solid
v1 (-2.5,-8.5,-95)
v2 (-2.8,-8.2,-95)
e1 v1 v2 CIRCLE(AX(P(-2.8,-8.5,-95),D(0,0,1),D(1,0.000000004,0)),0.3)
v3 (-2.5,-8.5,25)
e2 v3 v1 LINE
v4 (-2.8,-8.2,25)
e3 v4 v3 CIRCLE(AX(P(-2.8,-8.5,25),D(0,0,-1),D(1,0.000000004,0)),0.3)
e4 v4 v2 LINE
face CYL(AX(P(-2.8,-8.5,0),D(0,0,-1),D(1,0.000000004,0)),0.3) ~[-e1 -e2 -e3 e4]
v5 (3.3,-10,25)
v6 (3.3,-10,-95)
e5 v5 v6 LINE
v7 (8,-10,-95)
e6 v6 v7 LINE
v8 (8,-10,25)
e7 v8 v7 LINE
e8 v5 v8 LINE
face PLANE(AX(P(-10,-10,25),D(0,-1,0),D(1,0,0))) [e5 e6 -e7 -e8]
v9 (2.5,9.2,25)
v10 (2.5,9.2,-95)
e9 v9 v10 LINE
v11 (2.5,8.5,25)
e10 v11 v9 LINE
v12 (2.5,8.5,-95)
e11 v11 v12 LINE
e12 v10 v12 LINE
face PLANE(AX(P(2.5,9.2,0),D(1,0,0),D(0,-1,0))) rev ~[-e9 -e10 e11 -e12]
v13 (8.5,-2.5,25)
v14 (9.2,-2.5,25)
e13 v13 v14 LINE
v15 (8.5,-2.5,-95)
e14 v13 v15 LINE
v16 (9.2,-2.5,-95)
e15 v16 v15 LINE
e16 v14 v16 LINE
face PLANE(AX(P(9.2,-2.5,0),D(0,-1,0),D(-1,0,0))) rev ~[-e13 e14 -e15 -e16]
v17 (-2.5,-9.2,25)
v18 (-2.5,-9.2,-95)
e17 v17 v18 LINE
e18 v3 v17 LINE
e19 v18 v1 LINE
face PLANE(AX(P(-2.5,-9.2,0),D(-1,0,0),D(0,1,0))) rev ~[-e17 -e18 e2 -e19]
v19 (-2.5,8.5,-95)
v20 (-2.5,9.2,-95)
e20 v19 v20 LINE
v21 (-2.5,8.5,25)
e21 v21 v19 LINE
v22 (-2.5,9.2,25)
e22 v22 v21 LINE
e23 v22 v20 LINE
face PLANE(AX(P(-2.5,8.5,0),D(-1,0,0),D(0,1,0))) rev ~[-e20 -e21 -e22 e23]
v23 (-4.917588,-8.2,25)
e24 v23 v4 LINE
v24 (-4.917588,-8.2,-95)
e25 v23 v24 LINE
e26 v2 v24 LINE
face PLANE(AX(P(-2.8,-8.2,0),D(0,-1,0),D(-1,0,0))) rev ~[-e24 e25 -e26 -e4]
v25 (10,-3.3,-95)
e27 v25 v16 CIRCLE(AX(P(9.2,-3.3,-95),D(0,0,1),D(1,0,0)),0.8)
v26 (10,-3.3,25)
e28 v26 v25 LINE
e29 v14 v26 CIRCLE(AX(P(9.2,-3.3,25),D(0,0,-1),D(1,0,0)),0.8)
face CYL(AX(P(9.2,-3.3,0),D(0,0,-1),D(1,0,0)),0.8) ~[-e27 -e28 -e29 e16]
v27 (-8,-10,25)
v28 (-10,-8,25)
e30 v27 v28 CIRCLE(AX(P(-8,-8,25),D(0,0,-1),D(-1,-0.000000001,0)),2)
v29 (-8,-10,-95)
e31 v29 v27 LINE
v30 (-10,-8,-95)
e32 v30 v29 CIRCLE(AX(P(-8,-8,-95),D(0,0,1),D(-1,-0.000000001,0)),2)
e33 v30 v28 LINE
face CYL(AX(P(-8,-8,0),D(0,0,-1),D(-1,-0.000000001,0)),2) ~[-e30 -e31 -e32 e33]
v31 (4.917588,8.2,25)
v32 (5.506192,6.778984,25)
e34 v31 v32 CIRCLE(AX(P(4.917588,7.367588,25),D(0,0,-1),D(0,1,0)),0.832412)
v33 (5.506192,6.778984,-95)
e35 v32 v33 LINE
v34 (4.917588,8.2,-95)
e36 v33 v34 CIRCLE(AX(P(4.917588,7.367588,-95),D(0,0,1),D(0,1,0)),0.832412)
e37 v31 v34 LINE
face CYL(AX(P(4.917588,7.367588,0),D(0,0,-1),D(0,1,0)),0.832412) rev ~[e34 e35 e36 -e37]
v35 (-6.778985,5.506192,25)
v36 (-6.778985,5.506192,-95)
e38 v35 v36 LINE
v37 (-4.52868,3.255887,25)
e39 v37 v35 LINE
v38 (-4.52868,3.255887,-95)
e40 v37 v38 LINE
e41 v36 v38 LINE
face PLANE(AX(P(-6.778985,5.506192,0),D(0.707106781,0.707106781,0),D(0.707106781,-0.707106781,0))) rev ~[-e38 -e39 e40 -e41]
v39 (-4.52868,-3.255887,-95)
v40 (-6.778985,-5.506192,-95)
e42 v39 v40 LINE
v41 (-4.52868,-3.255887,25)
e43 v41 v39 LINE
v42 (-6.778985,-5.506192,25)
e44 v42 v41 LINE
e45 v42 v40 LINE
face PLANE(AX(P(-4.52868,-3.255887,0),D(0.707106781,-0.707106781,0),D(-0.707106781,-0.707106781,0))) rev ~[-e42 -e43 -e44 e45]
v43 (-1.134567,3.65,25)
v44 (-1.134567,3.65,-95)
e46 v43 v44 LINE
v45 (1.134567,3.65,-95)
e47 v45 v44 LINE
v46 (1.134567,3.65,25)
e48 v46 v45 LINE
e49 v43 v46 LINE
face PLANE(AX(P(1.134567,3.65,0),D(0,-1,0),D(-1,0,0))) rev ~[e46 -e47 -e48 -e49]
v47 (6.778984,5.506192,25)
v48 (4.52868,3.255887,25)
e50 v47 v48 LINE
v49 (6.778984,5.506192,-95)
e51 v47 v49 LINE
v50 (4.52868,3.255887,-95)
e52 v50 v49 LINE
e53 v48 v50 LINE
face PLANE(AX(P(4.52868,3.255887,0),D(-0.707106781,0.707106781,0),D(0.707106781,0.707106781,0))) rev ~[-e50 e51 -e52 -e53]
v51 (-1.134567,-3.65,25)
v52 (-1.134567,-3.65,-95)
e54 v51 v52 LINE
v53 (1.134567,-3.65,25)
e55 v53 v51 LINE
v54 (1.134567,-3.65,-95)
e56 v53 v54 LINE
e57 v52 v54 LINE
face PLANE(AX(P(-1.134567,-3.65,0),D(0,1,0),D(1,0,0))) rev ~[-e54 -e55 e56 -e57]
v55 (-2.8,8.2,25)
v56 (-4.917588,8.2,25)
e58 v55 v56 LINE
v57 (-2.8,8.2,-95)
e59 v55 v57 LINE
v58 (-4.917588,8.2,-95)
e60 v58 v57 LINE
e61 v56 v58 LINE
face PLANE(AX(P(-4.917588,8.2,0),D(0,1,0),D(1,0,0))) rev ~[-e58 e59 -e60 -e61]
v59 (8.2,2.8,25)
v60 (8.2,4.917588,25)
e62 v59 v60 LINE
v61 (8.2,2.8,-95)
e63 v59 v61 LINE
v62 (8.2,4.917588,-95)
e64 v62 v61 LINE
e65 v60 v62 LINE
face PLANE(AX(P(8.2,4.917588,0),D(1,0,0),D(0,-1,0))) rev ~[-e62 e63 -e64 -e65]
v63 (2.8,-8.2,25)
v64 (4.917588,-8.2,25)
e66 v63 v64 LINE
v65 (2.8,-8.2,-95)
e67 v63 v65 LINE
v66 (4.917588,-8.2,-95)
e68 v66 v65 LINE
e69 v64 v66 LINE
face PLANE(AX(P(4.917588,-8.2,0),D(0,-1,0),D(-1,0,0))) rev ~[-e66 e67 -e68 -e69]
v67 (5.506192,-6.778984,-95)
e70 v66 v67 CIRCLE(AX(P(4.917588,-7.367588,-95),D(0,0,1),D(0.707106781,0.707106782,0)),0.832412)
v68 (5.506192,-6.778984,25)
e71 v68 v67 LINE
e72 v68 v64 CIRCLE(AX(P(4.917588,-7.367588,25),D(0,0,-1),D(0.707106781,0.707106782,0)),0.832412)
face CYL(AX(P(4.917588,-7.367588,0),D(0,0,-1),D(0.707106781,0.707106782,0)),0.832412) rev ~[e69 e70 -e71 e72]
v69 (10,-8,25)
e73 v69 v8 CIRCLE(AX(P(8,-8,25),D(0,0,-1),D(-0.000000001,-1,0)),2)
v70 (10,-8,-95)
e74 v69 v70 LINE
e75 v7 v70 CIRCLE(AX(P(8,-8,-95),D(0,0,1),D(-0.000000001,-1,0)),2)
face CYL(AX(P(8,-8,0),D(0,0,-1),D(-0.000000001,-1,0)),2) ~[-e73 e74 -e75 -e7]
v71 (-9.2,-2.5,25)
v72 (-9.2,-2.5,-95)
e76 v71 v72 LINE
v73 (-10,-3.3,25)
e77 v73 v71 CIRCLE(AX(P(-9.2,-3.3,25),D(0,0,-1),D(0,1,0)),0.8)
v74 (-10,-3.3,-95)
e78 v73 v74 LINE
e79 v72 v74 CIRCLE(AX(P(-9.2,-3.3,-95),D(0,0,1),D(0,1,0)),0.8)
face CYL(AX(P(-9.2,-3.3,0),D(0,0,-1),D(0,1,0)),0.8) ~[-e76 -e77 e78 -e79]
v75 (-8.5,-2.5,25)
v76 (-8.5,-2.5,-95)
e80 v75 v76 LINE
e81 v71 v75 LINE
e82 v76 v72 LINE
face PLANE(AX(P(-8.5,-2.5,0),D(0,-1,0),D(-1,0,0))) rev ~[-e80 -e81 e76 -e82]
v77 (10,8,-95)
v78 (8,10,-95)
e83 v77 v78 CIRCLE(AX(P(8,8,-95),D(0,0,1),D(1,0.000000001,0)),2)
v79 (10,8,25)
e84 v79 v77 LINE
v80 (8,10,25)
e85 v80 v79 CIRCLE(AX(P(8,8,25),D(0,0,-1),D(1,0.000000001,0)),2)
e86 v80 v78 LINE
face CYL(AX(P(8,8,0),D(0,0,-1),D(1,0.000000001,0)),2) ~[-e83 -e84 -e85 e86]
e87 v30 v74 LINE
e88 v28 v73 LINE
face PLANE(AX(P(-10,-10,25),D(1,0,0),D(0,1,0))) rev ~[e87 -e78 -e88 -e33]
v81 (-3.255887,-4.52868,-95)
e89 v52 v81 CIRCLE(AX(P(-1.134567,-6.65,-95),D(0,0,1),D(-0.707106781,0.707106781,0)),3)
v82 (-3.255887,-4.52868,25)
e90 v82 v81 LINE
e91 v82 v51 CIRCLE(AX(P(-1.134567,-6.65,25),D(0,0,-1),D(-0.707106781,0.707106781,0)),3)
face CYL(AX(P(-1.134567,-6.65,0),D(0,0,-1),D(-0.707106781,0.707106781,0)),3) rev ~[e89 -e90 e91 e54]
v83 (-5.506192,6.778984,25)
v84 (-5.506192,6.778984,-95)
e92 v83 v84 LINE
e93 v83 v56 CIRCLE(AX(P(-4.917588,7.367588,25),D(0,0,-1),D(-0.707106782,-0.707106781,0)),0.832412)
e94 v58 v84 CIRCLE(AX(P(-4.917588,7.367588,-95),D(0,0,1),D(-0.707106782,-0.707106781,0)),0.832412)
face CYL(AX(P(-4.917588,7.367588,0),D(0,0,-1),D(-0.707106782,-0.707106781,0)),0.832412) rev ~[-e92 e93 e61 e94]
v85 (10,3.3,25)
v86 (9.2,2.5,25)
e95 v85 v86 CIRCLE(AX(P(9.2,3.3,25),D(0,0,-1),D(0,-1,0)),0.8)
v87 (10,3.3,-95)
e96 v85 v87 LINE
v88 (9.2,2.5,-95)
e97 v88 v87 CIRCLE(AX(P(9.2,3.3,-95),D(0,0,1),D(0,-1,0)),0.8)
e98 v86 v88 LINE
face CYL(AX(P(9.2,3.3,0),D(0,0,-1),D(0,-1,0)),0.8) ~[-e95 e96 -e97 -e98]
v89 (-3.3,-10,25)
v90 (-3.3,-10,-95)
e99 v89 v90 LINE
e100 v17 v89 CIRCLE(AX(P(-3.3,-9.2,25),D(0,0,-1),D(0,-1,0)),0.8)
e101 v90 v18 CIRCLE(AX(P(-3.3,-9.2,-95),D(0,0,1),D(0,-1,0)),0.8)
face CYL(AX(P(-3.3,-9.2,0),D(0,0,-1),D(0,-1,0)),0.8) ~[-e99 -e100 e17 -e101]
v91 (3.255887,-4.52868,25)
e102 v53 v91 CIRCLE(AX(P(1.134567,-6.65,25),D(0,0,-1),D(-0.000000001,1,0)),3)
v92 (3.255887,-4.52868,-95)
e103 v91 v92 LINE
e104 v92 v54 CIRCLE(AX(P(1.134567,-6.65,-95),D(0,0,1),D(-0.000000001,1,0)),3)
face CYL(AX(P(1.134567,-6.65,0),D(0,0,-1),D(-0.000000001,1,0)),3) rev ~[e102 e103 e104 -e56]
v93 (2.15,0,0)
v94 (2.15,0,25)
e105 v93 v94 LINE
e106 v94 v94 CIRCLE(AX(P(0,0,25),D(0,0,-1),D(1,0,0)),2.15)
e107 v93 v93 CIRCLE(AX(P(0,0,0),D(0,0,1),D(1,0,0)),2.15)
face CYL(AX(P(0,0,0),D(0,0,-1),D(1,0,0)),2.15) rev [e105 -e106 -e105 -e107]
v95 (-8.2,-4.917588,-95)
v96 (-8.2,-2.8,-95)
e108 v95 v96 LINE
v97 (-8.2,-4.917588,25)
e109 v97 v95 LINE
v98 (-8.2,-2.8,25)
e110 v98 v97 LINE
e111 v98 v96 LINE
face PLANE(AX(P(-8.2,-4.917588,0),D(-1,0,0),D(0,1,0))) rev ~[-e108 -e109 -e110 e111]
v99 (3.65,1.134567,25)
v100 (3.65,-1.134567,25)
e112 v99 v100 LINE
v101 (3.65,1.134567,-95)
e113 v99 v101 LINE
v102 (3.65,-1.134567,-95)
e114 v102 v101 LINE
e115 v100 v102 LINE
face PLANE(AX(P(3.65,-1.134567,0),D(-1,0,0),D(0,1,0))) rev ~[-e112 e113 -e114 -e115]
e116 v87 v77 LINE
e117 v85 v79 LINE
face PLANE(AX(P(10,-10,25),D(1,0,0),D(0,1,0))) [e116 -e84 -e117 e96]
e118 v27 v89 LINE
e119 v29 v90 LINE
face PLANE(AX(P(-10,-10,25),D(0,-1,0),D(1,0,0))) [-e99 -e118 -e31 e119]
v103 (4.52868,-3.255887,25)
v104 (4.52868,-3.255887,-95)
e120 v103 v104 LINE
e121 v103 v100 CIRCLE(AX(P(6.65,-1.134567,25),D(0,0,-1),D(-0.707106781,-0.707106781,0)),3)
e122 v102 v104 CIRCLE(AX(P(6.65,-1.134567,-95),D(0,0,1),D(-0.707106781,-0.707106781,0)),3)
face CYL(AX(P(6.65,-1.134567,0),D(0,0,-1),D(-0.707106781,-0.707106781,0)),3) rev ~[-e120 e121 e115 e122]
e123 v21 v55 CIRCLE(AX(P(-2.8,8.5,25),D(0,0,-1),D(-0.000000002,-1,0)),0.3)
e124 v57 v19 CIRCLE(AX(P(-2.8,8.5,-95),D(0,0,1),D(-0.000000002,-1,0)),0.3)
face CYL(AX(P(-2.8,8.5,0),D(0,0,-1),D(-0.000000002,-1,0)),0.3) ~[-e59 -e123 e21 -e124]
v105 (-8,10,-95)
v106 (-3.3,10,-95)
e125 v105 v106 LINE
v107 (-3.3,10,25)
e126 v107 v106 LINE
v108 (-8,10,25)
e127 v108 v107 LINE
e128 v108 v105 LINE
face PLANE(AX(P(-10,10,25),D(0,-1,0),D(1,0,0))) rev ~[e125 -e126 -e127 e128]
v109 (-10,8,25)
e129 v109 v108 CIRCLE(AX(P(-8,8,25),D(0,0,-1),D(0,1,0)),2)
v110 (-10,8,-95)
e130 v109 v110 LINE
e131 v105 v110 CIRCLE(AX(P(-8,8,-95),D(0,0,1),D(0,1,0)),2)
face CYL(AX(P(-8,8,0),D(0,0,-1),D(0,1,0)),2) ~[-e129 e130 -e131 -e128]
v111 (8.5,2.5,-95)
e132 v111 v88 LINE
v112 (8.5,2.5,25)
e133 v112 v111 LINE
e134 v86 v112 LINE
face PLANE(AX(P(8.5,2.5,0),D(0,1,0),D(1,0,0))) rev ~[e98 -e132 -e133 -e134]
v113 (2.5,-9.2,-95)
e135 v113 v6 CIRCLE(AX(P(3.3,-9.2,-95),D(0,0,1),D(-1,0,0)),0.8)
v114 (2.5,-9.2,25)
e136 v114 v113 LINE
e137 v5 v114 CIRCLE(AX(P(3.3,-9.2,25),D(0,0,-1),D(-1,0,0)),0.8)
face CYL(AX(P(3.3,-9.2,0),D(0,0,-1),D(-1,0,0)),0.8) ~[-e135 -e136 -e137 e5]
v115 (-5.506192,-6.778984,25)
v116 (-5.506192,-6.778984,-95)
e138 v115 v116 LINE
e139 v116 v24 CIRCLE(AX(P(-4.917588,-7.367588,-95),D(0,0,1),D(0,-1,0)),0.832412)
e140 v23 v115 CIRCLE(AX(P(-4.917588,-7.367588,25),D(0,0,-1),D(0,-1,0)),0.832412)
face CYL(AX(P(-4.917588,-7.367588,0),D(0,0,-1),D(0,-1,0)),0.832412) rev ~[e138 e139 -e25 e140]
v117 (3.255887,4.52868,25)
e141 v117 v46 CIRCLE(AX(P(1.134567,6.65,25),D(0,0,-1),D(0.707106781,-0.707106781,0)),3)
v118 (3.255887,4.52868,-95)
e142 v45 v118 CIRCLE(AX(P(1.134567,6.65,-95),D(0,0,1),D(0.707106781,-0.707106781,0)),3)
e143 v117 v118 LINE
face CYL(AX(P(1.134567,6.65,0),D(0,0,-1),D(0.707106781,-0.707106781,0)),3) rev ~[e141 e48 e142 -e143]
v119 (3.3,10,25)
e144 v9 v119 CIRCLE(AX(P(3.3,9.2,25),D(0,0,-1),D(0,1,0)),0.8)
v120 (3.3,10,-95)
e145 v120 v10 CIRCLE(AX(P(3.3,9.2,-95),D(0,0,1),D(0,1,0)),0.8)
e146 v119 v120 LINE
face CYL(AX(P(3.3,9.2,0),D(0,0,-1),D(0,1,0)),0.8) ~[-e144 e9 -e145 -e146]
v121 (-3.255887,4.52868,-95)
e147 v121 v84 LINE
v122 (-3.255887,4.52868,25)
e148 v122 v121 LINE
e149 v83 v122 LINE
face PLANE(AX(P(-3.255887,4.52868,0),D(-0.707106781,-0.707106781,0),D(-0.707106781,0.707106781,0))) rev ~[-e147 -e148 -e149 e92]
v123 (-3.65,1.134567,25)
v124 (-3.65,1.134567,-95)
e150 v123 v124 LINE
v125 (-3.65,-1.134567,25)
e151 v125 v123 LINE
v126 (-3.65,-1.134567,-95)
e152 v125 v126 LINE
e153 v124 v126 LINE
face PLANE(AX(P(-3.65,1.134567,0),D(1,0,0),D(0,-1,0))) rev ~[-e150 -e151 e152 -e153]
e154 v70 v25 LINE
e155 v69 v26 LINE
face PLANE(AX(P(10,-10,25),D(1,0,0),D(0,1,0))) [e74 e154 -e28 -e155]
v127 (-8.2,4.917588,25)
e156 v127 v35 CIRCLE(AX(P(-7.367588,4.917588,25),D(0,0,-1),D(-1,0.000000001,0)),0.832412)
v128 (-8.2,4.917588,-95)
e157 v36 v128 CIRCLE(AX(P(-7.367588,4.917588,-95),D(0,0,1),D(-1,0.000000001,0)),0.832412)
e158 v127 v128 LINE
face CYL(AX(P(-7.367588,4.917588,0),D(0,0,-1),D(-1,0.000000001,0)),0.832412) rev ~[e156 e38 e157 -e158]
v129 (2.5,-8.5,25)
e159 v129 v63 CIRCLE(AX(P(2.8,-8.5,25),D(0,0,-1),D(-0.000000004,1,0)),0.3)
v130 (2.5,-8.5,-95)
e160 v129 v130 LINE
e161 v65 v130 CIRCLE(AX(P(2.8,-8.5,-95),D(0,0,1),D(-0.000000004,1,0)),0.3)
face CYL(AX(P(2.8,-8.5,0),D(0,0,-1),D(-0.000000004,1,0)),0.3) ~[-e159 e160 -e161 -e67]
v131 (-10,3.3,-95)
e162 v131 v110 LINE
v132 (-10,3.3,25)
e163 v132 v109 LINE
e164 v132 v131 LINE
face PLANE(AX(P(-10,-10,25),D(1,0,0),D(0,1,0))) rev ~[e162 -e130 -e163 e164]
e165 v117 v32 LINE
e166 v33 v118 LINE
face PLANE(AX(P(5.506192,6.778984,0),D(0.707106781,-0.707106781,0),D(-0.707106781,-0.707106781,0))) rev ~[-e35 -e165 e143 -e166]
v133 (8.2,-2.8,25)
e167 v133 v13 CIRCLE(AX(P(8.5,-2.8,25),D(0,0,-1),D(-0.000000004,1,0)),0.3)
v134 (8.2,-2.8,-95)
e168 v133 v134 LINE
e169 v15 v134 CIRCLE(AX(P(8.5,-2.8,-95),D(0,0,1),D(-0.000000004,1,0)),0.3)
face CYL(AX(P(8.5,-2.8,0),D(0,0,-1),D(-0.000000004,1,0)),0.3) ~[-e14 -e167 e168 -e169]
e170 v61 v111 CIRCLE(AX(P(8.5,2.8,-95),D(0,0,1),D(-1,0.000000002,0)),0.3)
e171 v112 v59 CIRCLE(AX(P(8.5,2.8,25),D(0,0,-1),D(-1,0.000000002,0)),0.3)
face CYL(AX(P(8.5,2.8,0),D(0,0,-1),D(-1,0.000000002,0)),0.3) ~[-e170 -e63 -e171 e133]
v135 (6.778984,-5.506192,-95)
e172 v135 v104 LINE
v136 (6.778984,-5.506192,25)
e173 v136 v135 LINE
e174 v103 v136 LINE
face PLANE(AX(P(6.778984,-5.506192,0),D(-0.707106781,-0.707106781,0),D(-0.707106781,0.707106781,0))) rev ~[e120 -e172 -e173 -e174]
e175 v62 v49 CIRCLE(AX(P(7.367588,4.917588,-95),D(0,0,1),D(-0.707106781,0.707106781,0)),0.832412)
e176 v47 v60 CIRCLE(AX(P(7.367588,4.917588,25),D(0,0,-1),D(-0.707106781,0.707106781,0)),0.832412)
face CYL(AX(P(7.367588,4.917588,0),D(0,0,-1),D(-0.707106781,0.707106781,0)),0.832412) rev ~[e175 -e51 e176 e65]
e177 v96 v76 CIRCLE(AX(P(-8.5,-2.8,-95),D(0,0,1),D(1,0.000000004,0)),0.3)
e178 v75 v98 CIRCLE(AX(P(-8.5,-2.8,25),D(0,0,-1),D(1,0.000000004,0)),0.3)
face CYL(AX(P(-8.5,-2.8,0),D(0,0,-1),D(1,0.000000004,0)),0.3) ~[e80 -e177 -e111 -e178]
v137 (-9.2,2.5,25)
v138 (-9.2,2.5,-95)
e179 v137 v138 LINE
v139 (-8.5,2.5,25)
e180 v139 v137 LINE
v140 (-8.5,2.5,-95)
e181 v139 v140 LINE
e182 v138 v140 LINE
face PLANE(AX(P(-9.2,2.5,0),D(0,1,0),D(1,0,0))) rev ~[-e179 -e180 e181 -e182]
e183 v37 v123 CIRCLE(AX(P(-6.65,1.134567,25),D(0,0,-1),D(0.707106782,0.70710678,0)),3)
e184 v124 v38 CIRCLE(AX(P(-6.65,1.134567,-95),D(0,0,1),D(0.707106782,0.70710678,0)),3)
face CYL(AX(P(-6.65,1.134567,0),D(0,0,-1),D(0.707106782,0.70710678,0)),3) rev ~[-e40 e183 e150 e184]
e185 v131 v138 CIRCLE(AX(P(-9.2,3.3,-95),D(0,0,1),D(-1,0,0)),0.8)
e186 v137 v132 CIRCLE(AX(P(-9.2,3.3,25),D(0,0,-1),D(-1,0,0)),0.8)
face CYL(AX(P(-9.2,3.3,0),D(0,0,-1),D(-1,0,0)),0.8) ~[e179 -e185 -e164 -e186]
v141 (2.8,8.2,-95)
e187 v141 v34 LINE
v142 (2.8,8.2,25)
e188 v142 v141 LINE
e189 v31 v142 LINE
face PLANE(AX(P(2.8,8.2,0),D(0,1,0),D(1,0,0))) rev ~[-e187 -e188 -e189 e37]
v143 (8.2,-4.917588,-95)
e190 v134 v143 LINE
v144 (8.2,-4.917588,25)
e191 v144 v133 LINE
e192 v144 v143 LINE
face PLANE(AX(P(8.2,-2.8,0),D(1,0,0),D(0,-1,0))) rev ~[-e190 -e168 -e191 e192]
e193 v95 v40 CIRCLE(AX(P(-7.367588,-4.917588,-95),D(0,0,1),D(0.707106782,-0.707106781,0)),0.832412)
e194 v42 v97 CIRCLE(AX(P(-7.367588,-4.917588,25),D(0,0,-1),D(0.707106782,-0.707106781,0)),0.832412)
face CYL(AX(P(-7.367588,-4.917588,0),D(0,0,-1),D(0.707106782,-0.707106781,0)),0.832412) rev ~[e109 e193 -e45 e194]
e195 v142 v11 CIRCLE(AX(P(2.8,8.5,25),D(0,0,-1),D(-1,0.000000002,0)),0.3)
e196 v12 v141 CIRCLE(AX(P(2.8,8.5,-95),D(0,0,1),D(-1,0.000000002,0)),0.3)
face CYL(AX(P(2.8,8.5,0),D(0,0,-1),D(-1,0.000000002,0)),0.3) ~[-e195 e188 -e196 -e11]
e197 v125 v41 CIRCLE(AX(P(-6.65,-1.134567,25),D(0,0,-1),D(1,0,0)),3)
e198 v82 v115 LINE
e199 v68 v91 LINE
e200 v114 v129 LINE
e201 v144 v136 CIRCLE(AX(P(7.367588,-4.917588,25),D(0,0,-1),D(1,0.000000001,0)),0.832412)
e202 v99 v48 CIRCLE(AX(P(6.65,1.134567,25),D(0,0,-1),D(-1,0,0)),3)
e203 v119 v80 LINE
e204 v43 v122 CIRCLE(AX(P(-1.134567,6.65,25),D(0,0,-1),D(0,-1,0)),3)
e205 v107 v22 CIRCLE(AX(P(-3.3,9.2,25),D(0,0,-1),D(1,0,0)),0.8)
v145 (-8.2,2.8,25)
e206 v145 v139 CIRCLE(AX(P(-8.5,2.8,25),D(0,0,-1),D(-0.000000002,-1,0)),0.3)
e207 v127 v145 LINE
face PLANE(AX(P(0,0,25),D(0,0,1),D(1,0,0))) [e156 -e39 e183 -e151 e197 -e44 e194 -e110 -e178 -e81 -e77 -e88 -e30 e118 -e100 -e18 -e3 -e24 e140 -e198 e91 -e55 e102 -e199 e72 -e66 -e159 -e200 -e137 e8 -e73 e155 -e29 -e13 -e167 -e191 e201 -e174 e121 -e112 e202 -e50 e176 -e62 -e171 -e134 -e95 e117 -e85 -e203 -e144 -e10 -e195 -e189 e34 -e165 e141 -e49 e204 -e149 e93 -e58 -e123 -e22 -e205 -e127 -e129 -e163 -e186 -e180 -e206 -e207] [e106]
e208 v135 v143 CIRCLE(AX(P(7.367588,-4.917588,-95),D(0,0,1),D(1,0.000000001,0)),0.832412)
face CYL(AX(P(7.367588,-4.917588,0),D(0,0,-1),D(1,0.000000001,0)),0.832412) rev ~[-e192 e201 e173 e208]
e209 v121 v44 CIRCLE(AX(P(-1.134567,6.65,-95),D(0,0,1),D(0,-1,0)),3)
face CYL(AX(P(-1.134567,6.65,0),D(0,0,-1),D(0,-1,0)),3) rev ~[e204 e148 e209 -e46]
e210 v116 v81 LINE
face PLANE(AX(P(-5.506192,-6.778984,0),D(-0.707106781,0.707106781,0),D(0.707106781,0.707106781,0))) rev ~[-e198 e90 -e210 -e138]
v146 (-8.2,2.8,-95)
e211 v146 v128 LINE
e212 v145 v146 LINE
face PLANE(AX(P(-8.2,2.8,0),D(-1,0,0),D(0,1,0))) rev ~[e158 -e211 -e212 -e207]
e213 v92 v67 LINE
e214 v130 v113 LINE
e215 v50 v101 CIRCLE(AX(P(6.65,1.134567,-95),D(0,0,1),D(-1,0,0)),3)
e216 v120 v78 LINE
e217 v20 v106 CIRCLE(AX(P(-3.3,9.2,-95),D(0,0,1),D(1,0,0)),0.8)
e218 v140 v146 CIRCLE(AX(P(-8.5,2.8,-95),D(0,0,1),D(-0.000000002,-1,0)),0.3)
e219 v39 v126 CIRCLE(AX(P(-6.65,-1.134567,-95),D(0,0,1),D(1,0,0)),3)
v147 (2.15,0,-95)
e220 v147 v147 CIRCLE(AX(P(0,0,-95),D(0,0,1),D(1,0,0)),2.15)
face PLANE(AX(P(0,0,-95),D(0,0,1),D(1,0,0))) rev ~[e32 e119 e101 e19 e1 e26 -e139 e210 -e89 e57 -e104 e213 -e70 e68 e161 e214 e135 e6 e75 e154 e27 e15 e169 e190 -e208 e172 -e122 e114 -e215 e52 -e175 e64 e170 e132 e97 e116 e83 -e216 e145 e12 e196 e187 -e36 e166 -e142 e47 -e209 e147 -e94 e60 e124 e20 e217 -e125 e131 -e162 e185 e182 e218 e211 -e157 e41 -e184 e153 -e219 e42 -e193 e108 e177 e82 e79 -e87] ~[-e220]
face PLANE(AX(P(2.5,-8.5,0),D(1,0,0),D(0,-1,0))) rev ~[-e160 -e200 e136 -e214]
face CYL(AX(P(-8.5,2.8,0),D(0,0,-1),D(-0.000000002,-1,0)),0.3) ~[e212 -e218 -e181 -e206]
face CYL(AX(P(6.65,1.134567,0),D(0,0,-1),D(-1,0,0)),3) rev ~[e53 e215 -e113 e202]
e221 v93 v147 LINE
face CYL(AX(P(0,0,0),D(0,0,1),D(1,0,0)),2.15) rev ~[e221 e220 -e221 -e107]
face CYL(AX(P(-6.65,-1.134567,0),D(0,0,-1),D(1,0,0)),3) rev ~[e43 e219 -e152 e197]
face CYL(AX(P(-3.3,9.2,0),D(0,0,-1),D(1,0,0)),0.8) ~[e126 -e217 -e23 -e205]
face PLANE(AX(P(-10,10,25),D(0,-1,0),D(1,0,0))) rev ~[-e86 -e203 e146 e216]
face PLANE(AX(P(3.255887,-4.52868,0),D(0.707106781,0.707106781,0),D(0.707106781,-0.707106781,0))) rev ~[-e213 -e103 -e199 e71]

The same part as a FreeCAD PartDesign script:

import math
import FreeCAD as App
import Part
import Sketcher
from FreeCAD import Vector

doc = App.newDocument("Part")
body = doc.addObject("PartDesign::Body", "Body")

sketch1 = body.newObject("Sketcher::SketchObject", "Sketch")
sketch1.AttachmentSupport = (doc.getObject("XY_Plane"), [""])
sketch1.MapMode = "FlatFace"
sketch1.AttachmentOffset = App.Placement(Vector(0, 0, 25), App.Rotation())
sketch1.addGeometry(Part.LineSegment(Vector(-10, 10, 0), Vector(-10, -10, 0)), False)
sketch1.addGeometry(Part.LineSegment(Vector(-10, -10, 0), Vector(10, -10, 0)), False)
sketch1.addGeometry(Part.LineSegment(Vector(10, -10, 0), Vector(10, 10, 0)), False)
sketch1.addGeometry(Part.LineSegment(Vector(10, 10, 0), Vector(-10, 10, 0)), False)
sketch1.addConstraint(Sketcher.Constraint("Coincident", 0, 2, 1, 1))
sketch1.addConstraint(Sketcher.Constraint("Coincident", 1, 2, 2, 1))
sketch1.addConstraint(Sketcher.Constraint("Coincident", 2, 2, 3, 1))
sketch1.addConstraint(Sketcher.Constraint("Coincident", 3, 2, 0, 1))
sketch1.addConstraint(Sketcher.Constraint("Vertical", 0))
sketch1.addConstraint(Sketcher.Constraint("Horizontal", 1))
sketch1.addConstraint(Sketcher.Constraint("Vertical", 2))
sketch1.addConstraint(Sketcher.Constraint("Horizontal", 3))
sketch1.addConstraint(Sketcher.Constraint("Symmetric", 0, 2, 2, 2, -1, 1))
sketch1.addConstraint(Sketcher.Constraint("Equal", 3, 0))
sketch1.addConstraint(Sketcher.Constraint("DistanceX", 1, 1, 1, 2, 20.0))
pad1 = body.newObject("PartDesign::Pad", "Pad")
pad1.Profile = sketch1
pad1.Length = 120
pad1.Reversed = True

sketch2 = body.newObject("Sketcher::SketchObject", "Sketch001")
sketch2.AttachmentSupport = (doc.getObject("XY_Plane"), [""])
sketch2.MapMode = "FlatFace"
sketch2.addGeometry(Part.LineSegment(Vector(-23.33, 23.33, 0), Vector(-23.33, -23.33, 0)), False)
sketch2.addGeometry(Part.LineSegment(Vector(-23.33, -23.33, 0), Vector(23.33, -23.33, 0)), False)
sketch2.addGeometry(Part.LineSegment(Vector(23.33, -23.33, 0), Vector(23.33, 23.33, 0)), False)
sketch2.addGeometry(Part.LineSegment(Vector(23.33, 23.33, 0), Vector(-23.33, 23.33, 0)), False)
sketch2.addGeometry(Part.LineSegment(Vector(2.8, -8.2, 0), Vector(4.92, -8.2, 0)), False)
sketch2.addGeometry(Part.ArcOfCircle(Part.Circle(Vector(4.92, -7.37, 0), Vector(0, 0, 1), 0.83), math.radians(-90), math.radians(45)), False)
sketch2.addGeometry(Part.LineSegment(Vector(5.51, -6.78, 0), Vector(3.26, -4.53, 0)), False)
sketch2.addGeometry(Part.ArcOfCircle(Part.Circle(Vector(1.13, -6.65, 0), Vector(0, 0, 1), 3), math.radians(45), math.radians(90)), False)
sketch2.addGeometry(Part.LineSegment(Vector(1.13, -3.65, 0), Vector(-1.13, -3.65, 0)), False)
sketch2.addGeometry(Part.ArcOfCircle(Part.Circle(Vector(-1.13, -6.65, 0), Vector(0, 0, 1), 3), math.radians(90), math.radians(135)), False)
sketch2.addGeometry(Part.LineSegment(Vector(-3.26, -4.53, 0), Vector(-5.51, -6.78, 0)), False)
sketch2.addGeometry(Part.ArcOfCircle(Part.Circle(Vector(-4.92, -7.37, 0), Vector(0, 0, 1), 0.83), math.radians(135), math.radians(270)), False)
sketch2.addGeometry(Part.LineSegment(Vector(-4.92, -8.2, 0), Vector(-2.8, -8.2, 0)), False)
sketch2.addGeometry(Part.ArcOfCircle(Part.Circle(Vector(-2.8, -8.5, 0), Vector(0, 0, 1), 0.3), math.radians(0), math.radians(90)), False)
sketch2.addGeometry(Part.LineSegment(Vector(-2.5, -8.5, 0), Vector(-2.5, -9.2, 0)), False)
sketch2.addGeometry(Part.ArcOfCircle(Part.Circle(Vector(-3.3, -9.2, 0), Vector(0, 0, 1), 0.8), math.radians(-90), math.radians(0)), False)
sketch2.addGeometry(Part.LineSegment(Vector(-3.3, -10, 0), Vector(-8, -10, 0)), False)
sketch2.addGeometry(Part.ArcOfCircle(Part.Circle(Vector(-8, -8, 0), Vector(0, 0, 1), 2), math.radians(-180), math.radians(-90)), False)
sketch2.addGeometry(Part.LineSegment(Vector(-10, -8, 0), Vector(-10, -3.3, 0)), False)
sketch2.addGeometry(Part.ArcOfCircle(Part.Circle(Vector(-9.2, -3.3, 0), Vector(0, 0, 1), 0.8), math.radians(90), math.radians(180)), False)
sketch2.addGeometry(Part.LineSegment(Vector(-9.2, -2.5, 0), Vector(-8.5, -2.5, 0)), False)
sketch2.addGeometry(Part.ArcOfCircle(Part.Circle(Vector(-8.5, -2.8, 0), Vector(0, 0, 1), 0.3), math.radians(0), math.radians(90)), False)
sketch2.addGeometry(Part.LineSegment(Vector(-8.2, -2.8, 0), Vector(-8.2, -4.92, 0)), False)
sketch2.addGeometry(Part.ArcOfCircle(Part.Circle(Vector(-7.37, -4.92, 0), Vector(0, 0, 1), 0.83), math.radians(180), math.radians(315)), False)
sketch2.addGeometry(Part.LineSegment(Vector(-6.78, -5.51, 0), Vector(-4.53, -3.26, 0)), False)
sketch2.addGeometry(Part.ArcOfCircle(Part.Circle(Vector(-6.65, -1.13, 0), Vector(0, 0, 1), 3), math.radians(-45), math.radians(0)), False)
sketch2.addGeometry(Part.LineSegment(Vector(-3.65, -1.13, 0), Vector(-3.65, 1.13, 0)), False)
sketch2.addGeometry(Part.ArcOfCircle(Part.Circle(Vector(-6.65, 1.13, 0), Vector(0, 0, 1), 3), math.radians(0), math.radians(45)), False)
sketch2.addGeometry(Part.LineSegment(Vector(-4.53, 3.26, 0), Vector(-6.78, 5.51, 0)), False)
sketch2.addGeometry(Part.ArcOfCircle(Part.Circle(Vector(-7.37, 4.92, 0), Vector(0, 0, 1), 0.83), math.radians(45), math.radians(180)), False)
sketch2.addGeometry(Part.LineSegment(Vector(-8.2, 4.92, 0), Vector(-8.2, 2.8, 0)), False)
sketch2.addGeometry(Part.ArcOfCircle(Part.Circle(Vector(-8.5, 2.8, 0), Vector(0, 0, 1), 0.3), math.radians(-90), math.radians(0)), False)
sketch2.addGeometry(Part.LineSegment(Vector(-8.5, 2.5, 0), Vector(-9.2, 2.5, 0)), False)
sketch2.addGeometry(Part.ArcOfCircle(Part.Circle(Vector(-9.2, 3.3, 0), Vector(0, 0, 1), 0.8), math.radians(180), math.radians(270)), False)
sketch2.addGeometry(Part.LineSegment(Vector(-10, 3.3, 0), Vector(-10, 8, 0)), False)
sketch2.addGeometry(Part.ArcOfCircle(Part.Circle(Vector(-8, 8, 0), Vector(0, 0, 1), 2), math.radians(90), math.radians(180)), False)
sketch2.addGeometry(Part.LineSegment(Vector(-8, 10, 0), Vector(-3.3, 10, 0)), False)
sketch2.addGeometry(Part.ArcOfCircle(Part.Circle(Vector(-3.3, 9.2, 0), Vector(0, 0, 1), 0.8), math.radians(0), math.radians(90)), False)
sketch2.addGeometry(Part.LineSegment(Vector(-2.5, 9.2, 0), Vector(-2.5, 8.5, 0)), False)
sketch2.addGeometry(Part.ArcOfCircle(Part.Circle(Vector(-2.8, 8.5, 0), Vector(0, 0, 1), 0.3), math.radians(-90), math.radians(0)), False)
sketch2.addGeometry(Part.LineSegment(Vector(-2.8, 8.2, 0), Vector(-4.92, 8.2, 0)), False)
sketch2.addGeometry(Part.ArcOfCircle(Part.Circle(Vector(-4.92, 7.37, 0), Vector(0, 0, 1), 0.83), math.radians(90), math.radians(225)), False)
sketch2.addGeometry(Part.LineSegment(Vector(-5.51, 6.78, 0), Vector(-3.26, 4.53, 0)), False)
sketch2.addGeometry(Part.ArcOfCircle(Part.Circle(Vector(-1.13, 6.65, 0), Vector(0, 0, 1), 3), math.radians(-135), math.radians(-90)), False)
sketch2.addGeometry(Part.LineSegment(Vector(-1.13, 3.65, 0), Vector(1.13, 3.65, 0)), False)
sketch2.addGeometry(Part.ArcOfCircle(Part.Circle(Vector(1.13, 6.65, 0), Vector(0, 0, 1), 3), math.radians(-90), math.radians(-45)), False)
sketch2.addGeometry(Part.LineSegment(Vector(3.26, 4.53, 0), Vector(5.51, 6.78, 0)), False)
sketch2.addGeometry(Part.ArcOfCircle(Part.Circle(Vector(4.92, 7.37, 0), Vector(0, 0, 1), 0.83), math.radians(-45), math.radians(90)), False)
sketch2.addGeometry(Part.LineSegment(Vector(4.92, 8.2, 0), Vector(2.8, 8.2, 0)), False)
sketch2.addGeometry(Part.ArcOfCircle(Part.Circle(Vector(2.8, 8.5, 0), Vector(0, 0, 1), 0.3), math.radians(180), math.radians(270)), False)
sketch2.addGeometry(Part.LineSegment(Vector(2.5, 8.5, 0), Vector(2.5, 9.2, 0)), False)
sketch2.addGeometry(Part.ArcOfCircle(Part.Circle(Vector(3.3, 9.2, 0), Vector(0, 0, 1), 0.8), math.radians(90), math.radians(180)), False)
sketch2.addGeometry(Part.LineSegment(Vector(3.3, 10, 0), Vector(8, 10, 0)), False)
sketch2.addGeometry(Part.ArcOfCircle(Part.Circle(Vector(8, 8, 0), Vector(0, 0, 1), 2), math.radians(0), math.radians(90)), False)
sketch2.addGeometry(Part.LineSegment(Vector(10, 8, 0), Vector(10, 3.3, 0)), False)
sketch2.addGeometry(Part.ArcOfCircle(Part.Circle(Vector(9.2, 3.3, 0), Vector(0, 0, 1), 0.8), math.radians(-90), math.radians(0)), False)
sketch2.addGeometry(Part.LineSegment(Vector(9.2, 2.5, 0), Vector(8.5, 2.5, 0)), False)
sketch2.addGeometry(Part.ArcOfCircle(Part.Circle(Vector(8.5, 2.8, 0), Vector(0, 0, 1), 0.3), math.radians(180), math.radians(270)), False)
sketch2.addGeometry(Part.LineSegment(Vector(8.2, 2.8, 0), Vector(8.2, 4.92, 0)), False)
sketch2.addGeometry(Part.ArcOfCircle(Part.Circle(Vector(7.37, 4.92, 0), Vector(0, 0, 1), 0.83), math.radians(0), math.radians(135)), False)
sketch2.addGeometry(Part.LineSegment(Vector(6.78, 5.51, 0), Vector(4.53, 3.26, 0)), False)
sketch2.addGeometry(Part.ArcOfCircle(Part.Circle(Vector(6.65, 1.13, 0), Vector(0, 0, 1), 3), math.radians(135), math.radians(180)), False)
sketch2.addGeometry(Part.LineSegment(Vector(3.65, 1.13, 0), Vector(3.65, -1.13, 0)), False)
sketch2.addGeometry(Part.ArcOfCircle(Part.Circle(Vector(6.65, -1.13, 0), Vector(0, 0, 1), 3), math.radians(180), math.radians(225)), False)
sketch2.addGeometry(Part.LineSegment(Vector(4.53, -3.26, 0), Vector(6.78, -5.51, 0)), False)
sketch2.addGeometry(Part.ArcOfCircle(Part.Circle(Vector(7.37, -4.92, 0), Vector(0, 0, 1), 0.83), math.radians(-135), math.radians(0)), False)
sketch2.addGeometry(Part.LineSegment(Vector(8.2, -4.92, 0), Vector(8.2, -2.8, 0)), False)
sketch2.addGeometry(Part.ArcOfCircle(Part.Circle(Vector(8.5, -2.8, 0), Vector(0, 0, 1), 0.3), math.radians(90), math.radians(180)), False)
sketch2.addGeometry(Part.LineSegment(Vector(8.5, -2.5, 0), Vector(9.2, -2.5, 0)), False)
sketch2.addGeometry(Part.ArcOfCircle(Part.Circle(Vector(9.2, -3.3, 0), Vector(0, 0, 1), 0.8), math.radians(0), math.radians(90)), False)
sketch2.addGeometry(Part.LineSegment(Vector(10, -3.3, 0), Vector(10, -8, 0)), False)
sketch2.addGeometry(Part.ArcOfCircle(Part.Circle(Vector(8, -8, 0), Vector(0, 0, 1), 2), math.radians(-90), math.radians(0)), False)
sketch2.addGeometry(Part.LineSegment(Vector(8, -10, 0), Vector(3.3, -10, 0)), False)
sketch2.addGeometry(Part.ArcOfCircle(Part.Circle(Vector(3.3, -9.2, 0), Vector(0, 0, 1), 0.8), math.radians(180), math.radians(270)), False)
sketch2.addGeometry(Part.LineSegment(Vector(2.5, -9.2, 0), Vector(2.5, -8.5, 0)), False)
sketch2.addGeometry(Part.ArcOfCircle(Part.Circle(Vector(2.8, -8.5, 0), Vector(0, 0, 1), 0.3), math.radians(90), math.radians(180)), False)
sketch2.addGeometry(Part.Circle(Vector(0, 0, 0), Vector(0, 0, 1), 2.15), False)
sketch2.addConstraint(Sketcher.Constraint("Coincident", 0, 2, 1, 1))
sketch2.addConstraint(Sketcher.Constraint("Coincident", 1, 2, 2, 1))
sketch2.addConstraint(Sketcher.Constraint("Coincident", 2, 2, 3, 1))
sketch2.addConstraint(Sketcher.Constraint("Coincident", 3, 2, 0, 1))
sketch2.addConstraint(Sketcher.Constraint("Tangent", 4, 2, 5, 1))
sketch2.addConstraint(Sketcher.Constraint("Tangent", 5, 2, 6, 1))
sketch2.addConstraint(Sketcher.Constraint("Tangent", 6, 2, 7, 1))
sketch2.addConstraint(Sketcher.Constraint("Tangent", 7, 2, 8, 1))
sketch2.addConstraint(Sketcher.Constraint("Tangent", 8, 2, 9, 1))
sketch2.addConstraint(Sketcher.Constraint("Tangent", 9, 2, 10, 1))
sketch2.addConstraint(Sketcher.Constraint("Tangent", 10, 2, 11, 1))
sketch2.addConstraint(Sketcher.Constraint("Tangent", 11, 2, 12, 1))
sketch2.addConstraint(Sketcher.Constraint("Tangent", 12, 2, 13, 2))
sketch2.addConstraint(Sketcher.Constraint("Tangent", 13, 1, 14, 1))
sketch2.addConstraint(Sketcher.Constraint("Tangent", 14, 2, 15, 2))
sketch2.addConstraint(Sketcher.Constraint("Tangent", 15, 1, 16, 1))
sketch2.addConstraint(Sketcher.Constraint("Tangent", 16, 2, 17, 2))
sketch2.addConstraint(Sketcher.Constraint("Tangent", 17, 1, 18, 1))
sketch2.addConstraint(Sketcher.Constraint("Tangent", 18, 2, 19, 2))
sketch2.addConstraint(Sketcher.Constraint("Tangent", 19, 1, 20, 1))
sketch2.addConstraint(Sketcher.Constraint("Tangent", 20, 2, 21, 2))
sketch2.addConstraint(Sketcher.Constraint("Tangent", 21, 1, 22, 1))
sketch2.addConstraint(Sketcher.Constraint("Tangent", 22, 2, 23, 1))
sketch2.addConstraint(Sketcher.Constraint("Tangent", 23, 2, 24, 1))
sketch2.addConstraint(Sketcher.Constraint("Tangent", 24, 2, 25, 1))
sketch2.addConstraint(Sketcher.Constraint("Tangent", 25, 2, 26, 1))
sketch2.addConstraint(Sketcher.Constraint("Tangent", 26, 2, 27, 1))
sketch2.addConstraint(Sketcher.Constraint("Tangent", 27, 2, 28, 1))
sketch2.addConstraint(Sketcher.Constraint("Tangent", 28, 2, 29, 1))
sketch2.addConstraint(Sketcher.Constraint("Tangent", 29, 2, 30, 1))
sketch2.addConstraint(Sketcher.Constraint("Tangent", 30, 2, 31, 2))
sketch2.addConstraint(Sketcher.Constraint("Tangent", 31, 1, 32, 1))
sketch2.addConstraint(Sketcher.Constraint("Tangent", 32, 2, 33, 2))
sketch2.addConstraint(Sketcher.Constraint("Tangent", 33, 1, 34, 1))
sketch2.addConstraint(Sketcher.Constraint("Tangent", 34, 2, 35, 2))
sketch2.addConstraint(Sketcher.Constraint("Tangent", 35, 1, 36, 1))
sketch2.addConstraint(Sketcher.Constraint("Tangent", 36, 2, 37, 2))
sketch2.addConstraint(Sketcher.Constraint("Tangent", 37, 1, 38, 1))
sketch2.addConstraint(Sketcher.Constraint("Tangent", 38, 2, 39, 2))
sketch2.addConstraint(Sketcher.Constraint("Tangent", 39, 1, 40, 1))
sketch2.addConstraint(Sketcher.Constraint("Tangent", 40, 2, 41, 1))
sketch2.addConstraint(Sketcher.Constraint("Tangent", 41, 2, 42, 1))
sketch2.addConstraint(Sketcher.Constraint("Tangent", 42, 2, 43, 1))
sketch2.addConstraint(Sketcher.Constraint("Tangent", 43, 2, 44, 1))
sketch2.addConstraint(Sketcher.Constraint("Tangent", 44, 2, 45, 1))
sketch2.addConstraint(Sketcher.Constraint("Tangent", 45, 2, 46, 1))
sketch2.addConstraint(Sketcher.Constraint("Tangent", 46, 2, 47, 1))
sketch2.addConstraint(Sketcher.Constraint("Tangent", 47, 2, 48, 1))
sketch2.addConstraint(Sketcher.Constraint("Tangent", 48, 2, 49, 2))
sketch2.addConstraint(Sketcher.Constraint("Tangent", 49, 1, 50, 1))
sketch2.addConstraint(Sketcher.Constraint("Tangent", 50, 2, 51, 2))
sketch2.addConstraint(Sketcher.Constraint("Tangent", 51, 1, 52, 1))
sketch2.addConstraint(Sketcher.Constraint("Tangent", 52, 2, 53, 2))
sketch2.addConstraint(Sketcher.Constraint("Tangent", 53, 1, 54, 1))
sketch2.addConstraint(Sketcher.Constraint("Tangent", 54, 2, 55, 2))
sketch2.addConstraint(Sketcher.Constraint("Tangent", 55, 1, 56, 1))
sketch2.addConstraint(Sketcher.Constraint("Tangent", 56, 2, 57, 2))
sketch2.addConstraint(Sketcher.Constraint("Tangent", 57, 1, 58, 1))
sketch2.addConstraint(Sketcher.Constraint("Tangent", 58, 2, 59, 1))
sketch2.addConstraint(Sketcher.Constraint("Tangent", 59, 2, 60, 1))
sketch2.addConstraint(Sketcher.Constraint("Tangent", 60, 2, 61, 1))
sketch2.addConstraint(Sketcher.Constraint("Tangent", 61, 2, 62, 1))
sketch2.addConstraint(Sketcher.Constraint("Tangent", 62, 2, 63, 1))
sketch2.addConstraint(Sketcher.Constraint("Tangent", 63, 2, 64, 1))
sketch2.addConstraint(Sketcher.Constraint("Tangent", 64, 2, 65, 1))
sketch2.addConstraint(Sketcher.Constraint("Tangent", 65, 2, 66, 1))
sketch2.addConstraint(Sketcher.Constraint("Tangent", 66, 2, 67, 2))
sketch2.addConstraint(Sketcher.Constraint("Tangent", 67, 1, 68, 1))
sketch2.addConstraint(Sketcher.Constraint("Tangent", 68, 2, 69, 2))
sketch2.addConstraint(Sketcher.Constraint("Tangent", 69, 1, 70, 1))
sketch2.addConstraint(Sketcher.Constraint("Tangent", 70, 2, 71, 2))
sketch2.addConstraint(Sketcher.Constraint("Tangent", 71, 1, 72, 1))
sketch2.addConstraint(Sketcher.Constraint("Tangent", 72, 2, 73, 2))
sketch2.addConstraint(Sketcher.Constraint("Tangent", 73, 1, 74, 1))
sketch2.addConstraint(Sketcher.Constraint("Tangent", 74, 2, 75, 2))
sketch2.addConstraint(Sketcher.Constraint("Tangent", 75, 1, 4, 1))
sketch2.addConstraint(Sketcher.Constraint("Vertical", 0))
sketch2.addConstraint(Sketcher.Constraint("Horizontal", 1))
sketch2.addConstraint(Sketcher.Constraint("Vertical", 2))
sketch2.addConstraint(Sketcher.Constraint("Horizontal", 3))
sketch2.addConstraint(Sketcher.Constraint("Horizontal", 4))
sketch2.addConstraint(Sketcher.Constraint("Horizontal", 8))
sketch2.addConstraint(Sketcher.Constraint("Horizontal", 12))
sketch2.addConstraint(Sketcher.Constraint("Vertical", 14))
sketch2.addConstraint(Sketcher.Constraint("Horizontal", 16))
sketch2.addConstraint(Sketcher.Constraint("Vertical", 18))
sketch2.addConstraint(Sketcher.Constraint("Horizontal", 20))
sketch2.addConstraint(Sketcher.Constraint("Vertical", 22))
sketch2.addConstraint(Sketcher.Constraint("Vertical", 26))
sketch2.addConstraint(Sketcher.Constraint("Vertical", 30))
sketch2.addConstraint(Sketcher.Constraint("Horizontal", 32))
sketch2.addConstraint(Sketcher.Constraint("Vertical", 34))
sketch2.addConstraint(Sketcher.Constraint("Horizontal", 36))
sketch2.addConstraint(Sketcher.Constraint("Vertical", 38))
sketch2.addConstraint(Sketcher.Constraint("Horizontal", 40))
sketch2.addConstraint(Sketcher.Constraint("Horizontal", 44))
sketch2.addConstraint(Sketcher.Constraint("Horizontal", 48))
sketch2.addConstraint(Sketcher.Constraint("Vertical", 50))
sketch2.addConstraint(Sketcher.Constraint("Horizontal", 52))
sketch2.addConstraint(Sketcher.Constraint("Vertical", 54))
sketch2.addConstraint(Sketcher.Constraint("Horizontal", 56))
sketch2.addConstraint(Sketcher.Constraint("Vertical", 58))
sketch2.addConstraint(Sketcher.Constraint("Vertical", 62))
sketch2.addConstraint(Sketcher.Constraint("Vertical", 66))
sketch2.addConstraint(Sketcher.Constraint("Horizontal", 68))
sketch2.addConstraint(Sketcher.Constraint("Vertical", 70))
sketch2.addConstraint(Sketcher.Constraint("Horizontal", 72))
sketch2.addConstraint(Sketcher.Constraint("Vertical", 74))
sketch2.addConstraint(Sketcher.Constraint("Coincident", 76, 3, -1, 1))
sketch2.addConstraint(Sketcher.Constraint("Equal", 7, 9))
sketch2.addConstraint(Sketcher.Constraint("Equal", 5, 11))
sketch2.addConstraint(Sketcher.Constraint("Equal", 15, 19))
sketch2.addConstraint(Sketcher.Constraint("Equal", 13, 21))
sketch2.addConstraint(Sketcher.Constraint("Equal", 11, 23))
sketch2.addConstraint(Sketcher.Constraint("Equal", 9, 25))
sketch2.addConstraint(Sketcher.Constraint("Equal", 25, 27))
sketch2.addConstraint(Sketcher.Constraint("Equal", 23, 29))
sketch2.addConstraint(Sketcher.Constraint("Equal", 21, 31))
sketch2.addConstraint(Sketcher.Constraint("Equal", 19, 33))
sketch2.addConstraint(Sketcher.Constraint("Equal", 17, 35))
sketch2.addConstraint(Sketcher.Constraint("Equal", 33, 37))
sketch2.addConstraint(Sketcher.Constraint("Equal", 31, 39))
sketch2.addConstraint(Sketcher.Constraint("Equal", 29, 41))
sketch2.addConstraint(Sketcher.Constraint("Equal", 27, 43))
sketch2.addConstraint(Sketcher.Constraint("Equal", 43, 45))
sketch2.addConstraint(Sketcher.Constraint("Equal", 41, 47))
sketch2.addConstraint(Sketcher.Constraint("Equal", 39, 49))
sketch2.addConstraint(Sketcher.Constraint("Equal", 37, 51))
sketch2.addConstraint(Sketcher.Constraint("Equal", 35, 53))
sketch2.addConstraint(Sketcher.Constraint("Equal", 51, 55))
sketch2.addConstraint(Sketcher.Constraint("Equal", 49, 57))
sketch2.addConstraint(Sketcher.Constraint("Equal", 47, 59))
sketch2.addConstraint(Sketcher.Constraint("Equal", 45, 61))
sketch2.addConstraint(Sketcher.Constraint("Equal", 61, 63))
sketch2.addConstraint(Sketcher.Constraint("Equal", 59, 65))
sketch2.addConstraint(Sketcher.Constraint("Equal", 57, 67))
sketch2.addConstraint(Sketcher.Constraint("Equal", 55, 69))
sketch2.addConstraint(Sketcher.Constraint("Equal", 53, 71))
sketch2.addConstraint(Sketcher.Constraint("Equal", 69, 73))
sketch2.addConstraint(Sketcher.Constraint("Equal", 67, 75))
sketch2.addConstraint(Sketcher.Constraint("Symmetric", 5, 3, 41, 3, -1, 1))
sketch2.addConstraint(Sketcher.Constraint("Symmetric", 7, 3, 43, 3, -1, 1))
sketch2.addConstraint(Sketcher.Constraint("Symmetric", 11, 3, 47, 3, -1, 1))
sketch2.addConstraint(Sketcher.Constraint("Symmetric", 15, 3, 51, 3, -1, 1))
sketch2.addConstraint(Sketcher.Constraint("Symmetric", 19, 3, 55, 3, -1, 1))
sketch2.addConstraint(Sketcher.Constraint("Symmetric", 23, 3, 59, 3, -1, 1))
sketch2.addConstraint(Sketcher.Constraint("Symmetric", 25, 3, 61, 3, -1, 1))
sketch2.addConstraint(Sketcher.Constraint("Symmetric", 29, 3, 65, 3, -1, 1))
sketch2.addConstraint(Sketcher.Constraint("Symmetric", 33, 3, 69, 3, -1, 1))
sketch2.addConstraint(Sketcher.Constraint("Symmetric", 37, 3, 73, 3, -1, 1))
sketch2.addConstraint(Sketcher.Constraint("Symmetric", 0, 2, 2, 2, -1, 1))
sketch2.addConstraint(Sketcher.Constraint("Symmetric", 5, 3, 11, 3, -2))
sketch2.addConstraint(Sketcher.Constraint("Symmetric", 37, 3, 51, 3, -2))
sketch2.addConstraint(Sketcher.Constraint("Symmetric", 33, 3, 55, 3, -2))
sketch2.addConstraint(Sketcher.Constraint("Symmetric", 29, 3, 59, 3, -2))
sketch2.addConstraint(Sketcher.Constraint("Perpendicular", 6, 10))
sketch2.addConstraint(Sketcher.Constraint("Parallel", 10, 24))
sketch2.addConstraint(Sketcher.Constraint("Perpendicular", 24, 28))
sketch2.addConstraint(Sketcher.Constraint("Perpendicular", 42, 46))
sketch2.addConstraint(Sketcher.Constraint("Perpendicular", 60, 64))
sketch2.addConstraint(Sketcher.Constraint("Horizontal", 27, 3, 61, 3))
sketch2.addConstraint(Sketcher.Constraint("Equal", 3, 0))
sketch2.addConstraint(Sketcher.Constraint("Equal", 68, 14))
sketch2.addConstraint(Sketcher.Constraint("Equal", 72, 18))
sketch2.addConstraint(Sketcher.Constraint("Equal", 48, 22))
sketch2.addConstraint(Sketcher.Constraint("Equal", 44, 26))
sketch2.addConstraint(Sketcher.Constraint("Equal", 10, 24))
sketch2.addConstraint(Sketcher.Constraint("Radius", 7, 3.0))
sketch2.addConstraint(Sketcher.Constraint("Radius", 17, 2.0))
sketch2.addConstraint(Sketcher.Constraint("Diameter", 76, 4.3))
sketch2.addConstraint(Sketcher.Constraint("Radius", 13, 0.3))
sketch2.addConstraint(Sketcher.Constraint("Radius", 15, 0.8))
sketch2.addConstraint(Sketcher.Constraint("DistanceX", 16, 2, 16, 1, 4.7))
sketch2.addConstraint(Sketcher.Constraint("DistanceX", 20, 1, 20, 2, 0.7))
sketch2.addConstraint(Sketcher.Constraint("DistanceX", 17, 3, -1, 1, 8.0))
sketch2.addConstraint(Sketcher.Constraint("DistanceX", 1, 1, 1, 2, 46.658))
sketch2.addConstraint(Sketcher.Constraint("DistanceY", 7, 3, -1, 1, 6.65))
sketch2.addConstraint(Sketcher.Constraint("Radius", 5, 0.832412))
sketch2.addConstraint(Sketcher.Constraint("DistanceX", 4, 1, 4, 2, 2.117588))
pocket1 = body.newObject("PartDesign::Pocket", "Pocket")
pocket1.Profile = sketch2
pocket1.Type = "ThroughAll"
pocket1.Midplane = True

doc.recompute()
